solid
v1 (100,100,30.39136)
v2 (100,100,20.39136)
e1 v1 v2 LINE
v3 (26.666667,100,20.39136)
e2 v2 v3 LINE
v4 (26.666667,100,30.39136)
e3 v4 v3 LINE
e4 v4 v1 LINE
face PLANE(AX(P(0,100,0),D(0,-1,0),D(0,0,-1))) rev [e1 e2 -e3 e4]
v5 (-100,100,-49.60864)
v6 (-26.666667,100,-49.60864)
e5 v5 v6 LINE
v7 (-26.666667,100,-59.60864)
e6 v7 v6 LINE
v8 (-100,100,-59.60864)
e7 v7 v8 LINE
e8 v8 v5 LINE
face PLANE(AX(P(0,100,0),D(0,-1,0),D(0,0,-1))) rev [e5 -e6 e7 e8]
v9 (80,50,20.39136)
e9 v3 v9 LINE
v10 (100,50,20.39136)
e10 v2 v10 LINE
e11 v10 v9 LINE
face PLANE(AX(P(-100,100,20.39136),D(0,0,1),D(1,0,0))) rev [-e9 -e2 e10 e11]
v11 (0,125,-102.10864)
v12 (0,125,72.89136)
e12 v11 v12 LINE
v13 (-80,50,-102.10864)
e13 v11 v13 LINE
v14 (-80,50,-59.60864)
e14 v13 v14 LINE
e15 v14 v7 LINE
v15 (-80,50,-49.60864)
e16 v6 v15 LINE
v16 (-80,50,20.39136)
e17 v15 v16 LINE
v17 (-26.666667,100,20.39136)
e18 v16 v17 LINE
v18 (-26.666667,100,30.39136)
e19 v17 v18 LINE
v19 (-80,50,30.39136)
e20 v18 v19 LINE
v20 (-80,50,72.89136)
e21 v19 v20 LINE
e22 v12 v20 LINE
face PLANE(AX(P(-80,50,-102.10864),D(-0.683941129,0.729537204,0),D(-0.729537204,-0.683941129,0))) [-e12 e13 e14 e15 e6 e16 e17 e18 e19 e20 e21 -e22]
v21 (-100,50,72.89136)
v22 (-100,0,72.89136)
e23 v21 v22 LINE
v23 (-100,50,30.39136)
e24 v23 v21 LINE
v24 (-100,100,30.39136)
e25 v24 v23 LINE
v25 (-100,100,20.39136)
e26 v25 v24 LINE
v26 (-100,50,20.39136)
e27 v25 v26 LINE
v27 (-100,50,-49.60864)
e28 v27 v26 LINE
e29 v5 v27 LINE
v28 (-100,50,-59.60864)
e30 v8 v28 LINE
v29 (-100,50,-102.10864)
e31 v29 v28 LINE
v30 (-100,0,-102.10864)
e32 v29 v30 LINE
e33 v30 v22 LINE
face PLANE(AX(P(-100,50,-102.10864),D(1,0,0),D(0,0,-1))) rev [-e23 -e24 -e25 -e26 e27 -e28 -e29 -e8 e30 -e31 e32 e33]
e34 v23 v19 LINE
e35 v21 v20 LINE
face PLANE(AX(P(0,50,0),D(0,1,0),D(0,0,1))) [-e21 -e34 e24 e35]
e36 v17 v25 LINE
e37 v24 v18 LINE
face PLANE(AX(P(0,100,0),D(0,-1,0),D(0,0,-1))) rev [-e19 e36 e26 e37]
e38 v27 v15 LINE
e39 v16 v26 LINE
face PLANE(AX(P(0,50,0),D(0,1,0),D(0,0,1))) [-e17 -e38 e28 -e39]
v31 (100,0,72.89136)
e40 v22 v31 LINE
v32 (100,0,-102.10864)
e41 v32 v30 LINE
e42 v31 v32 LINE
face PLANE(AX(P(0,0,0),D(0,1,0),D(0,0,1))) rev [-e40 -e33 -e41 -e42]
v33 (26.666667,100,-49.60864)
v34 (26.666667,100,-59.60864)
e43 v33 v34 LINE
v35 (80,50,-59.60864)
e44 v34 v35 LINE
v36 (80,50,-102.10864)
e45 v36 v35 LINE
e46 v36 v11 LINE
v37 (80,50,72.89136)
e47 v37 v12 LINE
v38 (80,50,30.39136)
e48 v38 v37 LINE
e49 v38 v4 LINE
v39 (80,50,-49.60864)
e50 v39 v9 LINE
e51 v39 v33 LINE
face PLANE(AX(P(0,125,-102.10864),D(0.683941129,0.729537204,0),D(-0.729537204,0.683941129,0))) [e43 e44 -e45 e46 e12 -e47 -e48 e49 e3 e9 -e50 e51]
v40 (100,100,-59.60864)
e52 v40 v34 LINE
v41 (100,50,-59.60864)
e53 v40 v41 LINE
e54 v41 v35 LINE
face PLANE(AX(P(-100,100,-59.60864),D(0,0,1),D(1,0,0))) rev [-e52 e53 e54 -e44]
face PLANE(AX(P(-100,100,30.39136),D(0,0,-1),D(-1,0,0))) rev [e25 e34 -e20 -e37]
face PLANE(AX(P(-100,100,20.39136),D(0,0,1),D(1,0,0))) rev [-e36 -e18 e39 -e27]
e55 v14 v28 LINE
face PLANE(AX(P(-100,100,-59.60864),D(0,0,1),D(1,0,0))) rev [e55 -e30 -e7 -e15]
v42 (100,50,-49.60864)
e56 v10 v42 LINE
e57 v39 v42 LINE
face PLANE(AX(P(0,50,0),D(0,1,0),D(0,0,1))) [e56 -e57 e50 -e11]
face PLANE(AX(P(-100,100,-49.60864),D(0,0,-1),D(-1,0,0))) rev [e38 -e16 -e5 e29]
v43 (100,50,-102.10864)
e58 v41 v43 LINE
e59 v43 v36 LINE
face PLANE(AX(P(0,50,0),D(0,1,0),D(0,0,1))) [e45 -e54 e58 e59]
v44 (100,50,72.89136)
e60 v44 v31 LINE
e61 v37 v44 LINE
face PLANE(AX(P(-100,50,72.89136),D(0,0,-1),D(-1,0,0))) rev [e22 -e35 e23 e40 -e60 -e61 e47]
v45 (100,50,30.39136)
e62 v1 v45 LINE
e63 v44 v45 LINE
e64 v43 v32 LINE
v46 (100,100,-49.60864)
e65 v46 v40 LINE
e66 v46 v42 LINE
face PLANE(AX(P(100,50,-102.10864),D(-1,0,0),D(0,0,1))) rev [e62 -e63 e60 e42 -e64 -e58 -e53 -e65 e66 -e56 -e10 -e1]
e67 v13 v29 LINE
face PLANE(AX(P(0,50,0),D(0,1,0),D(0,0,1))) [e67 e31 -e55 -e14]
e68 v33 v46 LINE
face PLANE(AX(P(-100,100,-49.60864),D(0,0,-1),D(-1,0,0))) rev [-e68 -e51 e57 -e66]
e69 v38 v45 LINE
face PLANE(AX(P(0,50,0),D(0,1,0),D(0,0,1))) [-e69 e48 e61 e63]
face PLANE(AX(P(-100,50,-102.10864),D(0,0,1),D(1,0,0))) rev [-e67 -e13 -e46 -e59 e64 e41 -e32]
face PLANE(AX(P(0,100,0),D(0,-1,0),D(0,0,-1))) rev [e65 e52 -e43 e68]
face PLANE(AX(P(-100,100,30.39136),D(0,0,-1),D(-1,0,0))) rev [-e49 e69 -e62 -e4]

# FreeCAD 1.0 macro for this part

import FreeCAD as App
import Part
import Sketcher
from FreeCAD import Vector
Q = App.Units.Quantity


def add_polygon(sketch, points):
    """Adds a closed chain of lines whose ends are joined by coincident constraints."""
    first, n = sketch.GeometryCount, len(points)
    for a, b in zip(points, points[1:] + points[:1]):
        sketch.addGeometry(Part.LineSegment(App.Vector(*a, 0), App.Vector(*b, 0)), False)
    for i in range(n):
        sketch.addConstraint(Sketcher.Constraint("Coincident", first + i, 2, first + (i + 1) % n, 1))

doc = App.newDocument("Part")
body = doc.addObject("PartDesign::Body", "Body")

# Sketch on XZ plane
sketch1 = doc.addObject("Sketcher::SketchObject", "Sketch")
body.addObject(sketch1)
sketch1.AttachmentSupport = (doc.XZ_Plane, [""])
sketch1.MapMode = "FlatFace"
add_polygon(sketch1, [(-100, -102), (-100, 73), (100, 73), (100, -102)])  # lines 0-3
sketch1.addConstraint(Sketcher.Constraint("Vertical", 0))
sketch1.addConstraint(Sketcher.Constraint("Horizontal", 1))
sketch1.addConstraint(Sketcher.Constraint("Vertical", 2))
sketch1.addConstraint(Sketcher.Constraint("Horizontal", 3))
sketch1.addConstraint(Sketcher.Constraint("DistanceX", 1, 1, 1, 2, Q("200 mm")))
sketch1.addConstraint(Sketcher.Constraint("DistanceY", 0, 1, 0, 2, Q("175 mm")))
sketch1.addConstraint(Sketcher.Constraint("DistanceX", 0, 2, -1, 1, Q("100 mm")))
sketch1.addConstraint(Sketcher.Constraint("DistanceY", -1, 1, 0, 2, Q("72.89136 mm")))
pad1 = doc.addObject("PartDesign::Pad", "Pad")
body.addObject(pad1)
pad1.Profile = sketch1
pad1.Length = 50
pad1.Reversed = True

# Sketch on XY plane
sketch2 = doc.addObject("Sketcher::SketchObject", "Sketch001")
body.addObject(sketch2)
sketch2.AttachmentSupport = (doc.XY_Plane, [""])
sketch2.MapMode = "FlatFace"
sketch2.AttachmentOffset = App.Placement(Vector(0, 0, 72.89136), App.Rotation())
add_polygon(sketch2, [(0, 125), (-80, 50), (80, 50)])  # lines 0-2
sketch2.addConstraint(Sketcher.Constraint("Horizontal", 1))
sketch2.addConstraint(Sketcher.Constraint("PointOnObject", 2, 2, -2))
sketch2.addConstraint(Sketcher.Constraint("Equal", 0, 2))
sketch2.addConstraint(Sketcher.Constraint("DistanceX", 1, 1, 1, 2, Q("160 mm")))
sketch2.addConstraint(Sketcher.Constraint("DistanceY", -1, 1, 0, 2, Q("50 mm")))
sketch2.addConstraint(Sketcher.Constraint("DistanceY", -1, 1, 2, 2, Q("125 mm")))
pad2 = doc.addObject("PartDesign::Pad", "Pad001")
body.addObject(pad2)
pad2.Profile = sketch2
pad2.Length = 175
pad2.Reversed = True

# Sketch on XZ plane
sketch3 = doc.addObject("Sketcher::SketchObject", "Sketch002")
body.addObject(sketch3)
sketch3.AttachmentSupport = (doc.XZ_Plane, [""])
sketch3.MapMode = "FlatFace"
sketch3.AttachmentOffset = App.Placement(Vector(0, 0, -50), App.Rotation())
add_polygon(sketch3, [(-100, -60), (-100, -50), (100, -50), (100, -60)])  # lines 0-3
sketch3.addConstraint(Sketcher.Constraint("Vertical", 0))
sketch3.addConstraint(Sketcher.Constraint("Horizontal", 1))
sketch3.addConstraint(Sketcher.Constraint("Vertical", 2))
sketch3.addConstraint(Sketcher.Constraint("Horizontal", 3))
sketch3.addConstraint(Sketcher.Constraint("DistanceX", 1, 1, 1, 2, Q("200 mm")))
sketch3.addConstraint(Sketcher.Constraint("DistanceY", 0, 1, 0, 2, Q("10 mm")))
sketch3.addConstraint(Sketcher.Constraint("DistanceX", 0, 2, -1, 1, Q("100 mm")))
sketch3.addConstraint(Sketcher.Constraint("DistanceY", 0, 2, -1, 1, Q("49.60864 mm")))
pad3 = doc.addObject("PartDesign::Pad", "Pad002")
body.addObject(pad3)
pad3.Profile = sketch3
pad3.Length = 50
pad3.Reversed = True

# Sketch on XZ plane
sketch4 = doc.addObject("Sketcher::SketchObject", "Sketch003")
body.addObject(sketch4)
sketch4.AttachmentSupport = (doc.XZ_Plane, [""])
sketch4.MapMode = "FlatFace"
sketch4.AttachmentOffset = App.Placement(Vector(0, 0, -50), App.Rotation())
add_polygon(sketch4, [(-100, 20), (-100, 30), (100, 30), (100, 20)])  # lines 0-3
sketch4.addConstraint(Sketcher.Constraint("Vertical", 0))
sketch4.addConstraint(Sketcher.Constraint("Horizontal", 1))
sketch4.addConstraint(Sketcher.Constraint("Vertical", 2))
sketch4.addConstraint(Sketcher.Constraint("Horizontal", 3))
sketch4.addConstraint(Sketcher.Constraint("DistanceX", 1, 1, 1, 2, Q("200 mm")))
sketch4.addConstraint(Sketcher.Constraint("DistanceY", 0, 1, 0, 2, Q("10 mm")))
sketch4.addConstraint(Sketcher.Constraint("DistanceX", 0, 2, -1, 1, Q("100 mm")))
sketch4.addConstraint(Sketcher.Constraint("DistanceY", -1, 1, 0, 2, Q("30.39136 mm")))
pad4 = doc.addObject("PartDesign::Pad", "Pad003")
body.addObject(pad4)
pad4.Profile = sketch4
pad4.Length = 50
pad4.Reversed = True

doc.recompute()
